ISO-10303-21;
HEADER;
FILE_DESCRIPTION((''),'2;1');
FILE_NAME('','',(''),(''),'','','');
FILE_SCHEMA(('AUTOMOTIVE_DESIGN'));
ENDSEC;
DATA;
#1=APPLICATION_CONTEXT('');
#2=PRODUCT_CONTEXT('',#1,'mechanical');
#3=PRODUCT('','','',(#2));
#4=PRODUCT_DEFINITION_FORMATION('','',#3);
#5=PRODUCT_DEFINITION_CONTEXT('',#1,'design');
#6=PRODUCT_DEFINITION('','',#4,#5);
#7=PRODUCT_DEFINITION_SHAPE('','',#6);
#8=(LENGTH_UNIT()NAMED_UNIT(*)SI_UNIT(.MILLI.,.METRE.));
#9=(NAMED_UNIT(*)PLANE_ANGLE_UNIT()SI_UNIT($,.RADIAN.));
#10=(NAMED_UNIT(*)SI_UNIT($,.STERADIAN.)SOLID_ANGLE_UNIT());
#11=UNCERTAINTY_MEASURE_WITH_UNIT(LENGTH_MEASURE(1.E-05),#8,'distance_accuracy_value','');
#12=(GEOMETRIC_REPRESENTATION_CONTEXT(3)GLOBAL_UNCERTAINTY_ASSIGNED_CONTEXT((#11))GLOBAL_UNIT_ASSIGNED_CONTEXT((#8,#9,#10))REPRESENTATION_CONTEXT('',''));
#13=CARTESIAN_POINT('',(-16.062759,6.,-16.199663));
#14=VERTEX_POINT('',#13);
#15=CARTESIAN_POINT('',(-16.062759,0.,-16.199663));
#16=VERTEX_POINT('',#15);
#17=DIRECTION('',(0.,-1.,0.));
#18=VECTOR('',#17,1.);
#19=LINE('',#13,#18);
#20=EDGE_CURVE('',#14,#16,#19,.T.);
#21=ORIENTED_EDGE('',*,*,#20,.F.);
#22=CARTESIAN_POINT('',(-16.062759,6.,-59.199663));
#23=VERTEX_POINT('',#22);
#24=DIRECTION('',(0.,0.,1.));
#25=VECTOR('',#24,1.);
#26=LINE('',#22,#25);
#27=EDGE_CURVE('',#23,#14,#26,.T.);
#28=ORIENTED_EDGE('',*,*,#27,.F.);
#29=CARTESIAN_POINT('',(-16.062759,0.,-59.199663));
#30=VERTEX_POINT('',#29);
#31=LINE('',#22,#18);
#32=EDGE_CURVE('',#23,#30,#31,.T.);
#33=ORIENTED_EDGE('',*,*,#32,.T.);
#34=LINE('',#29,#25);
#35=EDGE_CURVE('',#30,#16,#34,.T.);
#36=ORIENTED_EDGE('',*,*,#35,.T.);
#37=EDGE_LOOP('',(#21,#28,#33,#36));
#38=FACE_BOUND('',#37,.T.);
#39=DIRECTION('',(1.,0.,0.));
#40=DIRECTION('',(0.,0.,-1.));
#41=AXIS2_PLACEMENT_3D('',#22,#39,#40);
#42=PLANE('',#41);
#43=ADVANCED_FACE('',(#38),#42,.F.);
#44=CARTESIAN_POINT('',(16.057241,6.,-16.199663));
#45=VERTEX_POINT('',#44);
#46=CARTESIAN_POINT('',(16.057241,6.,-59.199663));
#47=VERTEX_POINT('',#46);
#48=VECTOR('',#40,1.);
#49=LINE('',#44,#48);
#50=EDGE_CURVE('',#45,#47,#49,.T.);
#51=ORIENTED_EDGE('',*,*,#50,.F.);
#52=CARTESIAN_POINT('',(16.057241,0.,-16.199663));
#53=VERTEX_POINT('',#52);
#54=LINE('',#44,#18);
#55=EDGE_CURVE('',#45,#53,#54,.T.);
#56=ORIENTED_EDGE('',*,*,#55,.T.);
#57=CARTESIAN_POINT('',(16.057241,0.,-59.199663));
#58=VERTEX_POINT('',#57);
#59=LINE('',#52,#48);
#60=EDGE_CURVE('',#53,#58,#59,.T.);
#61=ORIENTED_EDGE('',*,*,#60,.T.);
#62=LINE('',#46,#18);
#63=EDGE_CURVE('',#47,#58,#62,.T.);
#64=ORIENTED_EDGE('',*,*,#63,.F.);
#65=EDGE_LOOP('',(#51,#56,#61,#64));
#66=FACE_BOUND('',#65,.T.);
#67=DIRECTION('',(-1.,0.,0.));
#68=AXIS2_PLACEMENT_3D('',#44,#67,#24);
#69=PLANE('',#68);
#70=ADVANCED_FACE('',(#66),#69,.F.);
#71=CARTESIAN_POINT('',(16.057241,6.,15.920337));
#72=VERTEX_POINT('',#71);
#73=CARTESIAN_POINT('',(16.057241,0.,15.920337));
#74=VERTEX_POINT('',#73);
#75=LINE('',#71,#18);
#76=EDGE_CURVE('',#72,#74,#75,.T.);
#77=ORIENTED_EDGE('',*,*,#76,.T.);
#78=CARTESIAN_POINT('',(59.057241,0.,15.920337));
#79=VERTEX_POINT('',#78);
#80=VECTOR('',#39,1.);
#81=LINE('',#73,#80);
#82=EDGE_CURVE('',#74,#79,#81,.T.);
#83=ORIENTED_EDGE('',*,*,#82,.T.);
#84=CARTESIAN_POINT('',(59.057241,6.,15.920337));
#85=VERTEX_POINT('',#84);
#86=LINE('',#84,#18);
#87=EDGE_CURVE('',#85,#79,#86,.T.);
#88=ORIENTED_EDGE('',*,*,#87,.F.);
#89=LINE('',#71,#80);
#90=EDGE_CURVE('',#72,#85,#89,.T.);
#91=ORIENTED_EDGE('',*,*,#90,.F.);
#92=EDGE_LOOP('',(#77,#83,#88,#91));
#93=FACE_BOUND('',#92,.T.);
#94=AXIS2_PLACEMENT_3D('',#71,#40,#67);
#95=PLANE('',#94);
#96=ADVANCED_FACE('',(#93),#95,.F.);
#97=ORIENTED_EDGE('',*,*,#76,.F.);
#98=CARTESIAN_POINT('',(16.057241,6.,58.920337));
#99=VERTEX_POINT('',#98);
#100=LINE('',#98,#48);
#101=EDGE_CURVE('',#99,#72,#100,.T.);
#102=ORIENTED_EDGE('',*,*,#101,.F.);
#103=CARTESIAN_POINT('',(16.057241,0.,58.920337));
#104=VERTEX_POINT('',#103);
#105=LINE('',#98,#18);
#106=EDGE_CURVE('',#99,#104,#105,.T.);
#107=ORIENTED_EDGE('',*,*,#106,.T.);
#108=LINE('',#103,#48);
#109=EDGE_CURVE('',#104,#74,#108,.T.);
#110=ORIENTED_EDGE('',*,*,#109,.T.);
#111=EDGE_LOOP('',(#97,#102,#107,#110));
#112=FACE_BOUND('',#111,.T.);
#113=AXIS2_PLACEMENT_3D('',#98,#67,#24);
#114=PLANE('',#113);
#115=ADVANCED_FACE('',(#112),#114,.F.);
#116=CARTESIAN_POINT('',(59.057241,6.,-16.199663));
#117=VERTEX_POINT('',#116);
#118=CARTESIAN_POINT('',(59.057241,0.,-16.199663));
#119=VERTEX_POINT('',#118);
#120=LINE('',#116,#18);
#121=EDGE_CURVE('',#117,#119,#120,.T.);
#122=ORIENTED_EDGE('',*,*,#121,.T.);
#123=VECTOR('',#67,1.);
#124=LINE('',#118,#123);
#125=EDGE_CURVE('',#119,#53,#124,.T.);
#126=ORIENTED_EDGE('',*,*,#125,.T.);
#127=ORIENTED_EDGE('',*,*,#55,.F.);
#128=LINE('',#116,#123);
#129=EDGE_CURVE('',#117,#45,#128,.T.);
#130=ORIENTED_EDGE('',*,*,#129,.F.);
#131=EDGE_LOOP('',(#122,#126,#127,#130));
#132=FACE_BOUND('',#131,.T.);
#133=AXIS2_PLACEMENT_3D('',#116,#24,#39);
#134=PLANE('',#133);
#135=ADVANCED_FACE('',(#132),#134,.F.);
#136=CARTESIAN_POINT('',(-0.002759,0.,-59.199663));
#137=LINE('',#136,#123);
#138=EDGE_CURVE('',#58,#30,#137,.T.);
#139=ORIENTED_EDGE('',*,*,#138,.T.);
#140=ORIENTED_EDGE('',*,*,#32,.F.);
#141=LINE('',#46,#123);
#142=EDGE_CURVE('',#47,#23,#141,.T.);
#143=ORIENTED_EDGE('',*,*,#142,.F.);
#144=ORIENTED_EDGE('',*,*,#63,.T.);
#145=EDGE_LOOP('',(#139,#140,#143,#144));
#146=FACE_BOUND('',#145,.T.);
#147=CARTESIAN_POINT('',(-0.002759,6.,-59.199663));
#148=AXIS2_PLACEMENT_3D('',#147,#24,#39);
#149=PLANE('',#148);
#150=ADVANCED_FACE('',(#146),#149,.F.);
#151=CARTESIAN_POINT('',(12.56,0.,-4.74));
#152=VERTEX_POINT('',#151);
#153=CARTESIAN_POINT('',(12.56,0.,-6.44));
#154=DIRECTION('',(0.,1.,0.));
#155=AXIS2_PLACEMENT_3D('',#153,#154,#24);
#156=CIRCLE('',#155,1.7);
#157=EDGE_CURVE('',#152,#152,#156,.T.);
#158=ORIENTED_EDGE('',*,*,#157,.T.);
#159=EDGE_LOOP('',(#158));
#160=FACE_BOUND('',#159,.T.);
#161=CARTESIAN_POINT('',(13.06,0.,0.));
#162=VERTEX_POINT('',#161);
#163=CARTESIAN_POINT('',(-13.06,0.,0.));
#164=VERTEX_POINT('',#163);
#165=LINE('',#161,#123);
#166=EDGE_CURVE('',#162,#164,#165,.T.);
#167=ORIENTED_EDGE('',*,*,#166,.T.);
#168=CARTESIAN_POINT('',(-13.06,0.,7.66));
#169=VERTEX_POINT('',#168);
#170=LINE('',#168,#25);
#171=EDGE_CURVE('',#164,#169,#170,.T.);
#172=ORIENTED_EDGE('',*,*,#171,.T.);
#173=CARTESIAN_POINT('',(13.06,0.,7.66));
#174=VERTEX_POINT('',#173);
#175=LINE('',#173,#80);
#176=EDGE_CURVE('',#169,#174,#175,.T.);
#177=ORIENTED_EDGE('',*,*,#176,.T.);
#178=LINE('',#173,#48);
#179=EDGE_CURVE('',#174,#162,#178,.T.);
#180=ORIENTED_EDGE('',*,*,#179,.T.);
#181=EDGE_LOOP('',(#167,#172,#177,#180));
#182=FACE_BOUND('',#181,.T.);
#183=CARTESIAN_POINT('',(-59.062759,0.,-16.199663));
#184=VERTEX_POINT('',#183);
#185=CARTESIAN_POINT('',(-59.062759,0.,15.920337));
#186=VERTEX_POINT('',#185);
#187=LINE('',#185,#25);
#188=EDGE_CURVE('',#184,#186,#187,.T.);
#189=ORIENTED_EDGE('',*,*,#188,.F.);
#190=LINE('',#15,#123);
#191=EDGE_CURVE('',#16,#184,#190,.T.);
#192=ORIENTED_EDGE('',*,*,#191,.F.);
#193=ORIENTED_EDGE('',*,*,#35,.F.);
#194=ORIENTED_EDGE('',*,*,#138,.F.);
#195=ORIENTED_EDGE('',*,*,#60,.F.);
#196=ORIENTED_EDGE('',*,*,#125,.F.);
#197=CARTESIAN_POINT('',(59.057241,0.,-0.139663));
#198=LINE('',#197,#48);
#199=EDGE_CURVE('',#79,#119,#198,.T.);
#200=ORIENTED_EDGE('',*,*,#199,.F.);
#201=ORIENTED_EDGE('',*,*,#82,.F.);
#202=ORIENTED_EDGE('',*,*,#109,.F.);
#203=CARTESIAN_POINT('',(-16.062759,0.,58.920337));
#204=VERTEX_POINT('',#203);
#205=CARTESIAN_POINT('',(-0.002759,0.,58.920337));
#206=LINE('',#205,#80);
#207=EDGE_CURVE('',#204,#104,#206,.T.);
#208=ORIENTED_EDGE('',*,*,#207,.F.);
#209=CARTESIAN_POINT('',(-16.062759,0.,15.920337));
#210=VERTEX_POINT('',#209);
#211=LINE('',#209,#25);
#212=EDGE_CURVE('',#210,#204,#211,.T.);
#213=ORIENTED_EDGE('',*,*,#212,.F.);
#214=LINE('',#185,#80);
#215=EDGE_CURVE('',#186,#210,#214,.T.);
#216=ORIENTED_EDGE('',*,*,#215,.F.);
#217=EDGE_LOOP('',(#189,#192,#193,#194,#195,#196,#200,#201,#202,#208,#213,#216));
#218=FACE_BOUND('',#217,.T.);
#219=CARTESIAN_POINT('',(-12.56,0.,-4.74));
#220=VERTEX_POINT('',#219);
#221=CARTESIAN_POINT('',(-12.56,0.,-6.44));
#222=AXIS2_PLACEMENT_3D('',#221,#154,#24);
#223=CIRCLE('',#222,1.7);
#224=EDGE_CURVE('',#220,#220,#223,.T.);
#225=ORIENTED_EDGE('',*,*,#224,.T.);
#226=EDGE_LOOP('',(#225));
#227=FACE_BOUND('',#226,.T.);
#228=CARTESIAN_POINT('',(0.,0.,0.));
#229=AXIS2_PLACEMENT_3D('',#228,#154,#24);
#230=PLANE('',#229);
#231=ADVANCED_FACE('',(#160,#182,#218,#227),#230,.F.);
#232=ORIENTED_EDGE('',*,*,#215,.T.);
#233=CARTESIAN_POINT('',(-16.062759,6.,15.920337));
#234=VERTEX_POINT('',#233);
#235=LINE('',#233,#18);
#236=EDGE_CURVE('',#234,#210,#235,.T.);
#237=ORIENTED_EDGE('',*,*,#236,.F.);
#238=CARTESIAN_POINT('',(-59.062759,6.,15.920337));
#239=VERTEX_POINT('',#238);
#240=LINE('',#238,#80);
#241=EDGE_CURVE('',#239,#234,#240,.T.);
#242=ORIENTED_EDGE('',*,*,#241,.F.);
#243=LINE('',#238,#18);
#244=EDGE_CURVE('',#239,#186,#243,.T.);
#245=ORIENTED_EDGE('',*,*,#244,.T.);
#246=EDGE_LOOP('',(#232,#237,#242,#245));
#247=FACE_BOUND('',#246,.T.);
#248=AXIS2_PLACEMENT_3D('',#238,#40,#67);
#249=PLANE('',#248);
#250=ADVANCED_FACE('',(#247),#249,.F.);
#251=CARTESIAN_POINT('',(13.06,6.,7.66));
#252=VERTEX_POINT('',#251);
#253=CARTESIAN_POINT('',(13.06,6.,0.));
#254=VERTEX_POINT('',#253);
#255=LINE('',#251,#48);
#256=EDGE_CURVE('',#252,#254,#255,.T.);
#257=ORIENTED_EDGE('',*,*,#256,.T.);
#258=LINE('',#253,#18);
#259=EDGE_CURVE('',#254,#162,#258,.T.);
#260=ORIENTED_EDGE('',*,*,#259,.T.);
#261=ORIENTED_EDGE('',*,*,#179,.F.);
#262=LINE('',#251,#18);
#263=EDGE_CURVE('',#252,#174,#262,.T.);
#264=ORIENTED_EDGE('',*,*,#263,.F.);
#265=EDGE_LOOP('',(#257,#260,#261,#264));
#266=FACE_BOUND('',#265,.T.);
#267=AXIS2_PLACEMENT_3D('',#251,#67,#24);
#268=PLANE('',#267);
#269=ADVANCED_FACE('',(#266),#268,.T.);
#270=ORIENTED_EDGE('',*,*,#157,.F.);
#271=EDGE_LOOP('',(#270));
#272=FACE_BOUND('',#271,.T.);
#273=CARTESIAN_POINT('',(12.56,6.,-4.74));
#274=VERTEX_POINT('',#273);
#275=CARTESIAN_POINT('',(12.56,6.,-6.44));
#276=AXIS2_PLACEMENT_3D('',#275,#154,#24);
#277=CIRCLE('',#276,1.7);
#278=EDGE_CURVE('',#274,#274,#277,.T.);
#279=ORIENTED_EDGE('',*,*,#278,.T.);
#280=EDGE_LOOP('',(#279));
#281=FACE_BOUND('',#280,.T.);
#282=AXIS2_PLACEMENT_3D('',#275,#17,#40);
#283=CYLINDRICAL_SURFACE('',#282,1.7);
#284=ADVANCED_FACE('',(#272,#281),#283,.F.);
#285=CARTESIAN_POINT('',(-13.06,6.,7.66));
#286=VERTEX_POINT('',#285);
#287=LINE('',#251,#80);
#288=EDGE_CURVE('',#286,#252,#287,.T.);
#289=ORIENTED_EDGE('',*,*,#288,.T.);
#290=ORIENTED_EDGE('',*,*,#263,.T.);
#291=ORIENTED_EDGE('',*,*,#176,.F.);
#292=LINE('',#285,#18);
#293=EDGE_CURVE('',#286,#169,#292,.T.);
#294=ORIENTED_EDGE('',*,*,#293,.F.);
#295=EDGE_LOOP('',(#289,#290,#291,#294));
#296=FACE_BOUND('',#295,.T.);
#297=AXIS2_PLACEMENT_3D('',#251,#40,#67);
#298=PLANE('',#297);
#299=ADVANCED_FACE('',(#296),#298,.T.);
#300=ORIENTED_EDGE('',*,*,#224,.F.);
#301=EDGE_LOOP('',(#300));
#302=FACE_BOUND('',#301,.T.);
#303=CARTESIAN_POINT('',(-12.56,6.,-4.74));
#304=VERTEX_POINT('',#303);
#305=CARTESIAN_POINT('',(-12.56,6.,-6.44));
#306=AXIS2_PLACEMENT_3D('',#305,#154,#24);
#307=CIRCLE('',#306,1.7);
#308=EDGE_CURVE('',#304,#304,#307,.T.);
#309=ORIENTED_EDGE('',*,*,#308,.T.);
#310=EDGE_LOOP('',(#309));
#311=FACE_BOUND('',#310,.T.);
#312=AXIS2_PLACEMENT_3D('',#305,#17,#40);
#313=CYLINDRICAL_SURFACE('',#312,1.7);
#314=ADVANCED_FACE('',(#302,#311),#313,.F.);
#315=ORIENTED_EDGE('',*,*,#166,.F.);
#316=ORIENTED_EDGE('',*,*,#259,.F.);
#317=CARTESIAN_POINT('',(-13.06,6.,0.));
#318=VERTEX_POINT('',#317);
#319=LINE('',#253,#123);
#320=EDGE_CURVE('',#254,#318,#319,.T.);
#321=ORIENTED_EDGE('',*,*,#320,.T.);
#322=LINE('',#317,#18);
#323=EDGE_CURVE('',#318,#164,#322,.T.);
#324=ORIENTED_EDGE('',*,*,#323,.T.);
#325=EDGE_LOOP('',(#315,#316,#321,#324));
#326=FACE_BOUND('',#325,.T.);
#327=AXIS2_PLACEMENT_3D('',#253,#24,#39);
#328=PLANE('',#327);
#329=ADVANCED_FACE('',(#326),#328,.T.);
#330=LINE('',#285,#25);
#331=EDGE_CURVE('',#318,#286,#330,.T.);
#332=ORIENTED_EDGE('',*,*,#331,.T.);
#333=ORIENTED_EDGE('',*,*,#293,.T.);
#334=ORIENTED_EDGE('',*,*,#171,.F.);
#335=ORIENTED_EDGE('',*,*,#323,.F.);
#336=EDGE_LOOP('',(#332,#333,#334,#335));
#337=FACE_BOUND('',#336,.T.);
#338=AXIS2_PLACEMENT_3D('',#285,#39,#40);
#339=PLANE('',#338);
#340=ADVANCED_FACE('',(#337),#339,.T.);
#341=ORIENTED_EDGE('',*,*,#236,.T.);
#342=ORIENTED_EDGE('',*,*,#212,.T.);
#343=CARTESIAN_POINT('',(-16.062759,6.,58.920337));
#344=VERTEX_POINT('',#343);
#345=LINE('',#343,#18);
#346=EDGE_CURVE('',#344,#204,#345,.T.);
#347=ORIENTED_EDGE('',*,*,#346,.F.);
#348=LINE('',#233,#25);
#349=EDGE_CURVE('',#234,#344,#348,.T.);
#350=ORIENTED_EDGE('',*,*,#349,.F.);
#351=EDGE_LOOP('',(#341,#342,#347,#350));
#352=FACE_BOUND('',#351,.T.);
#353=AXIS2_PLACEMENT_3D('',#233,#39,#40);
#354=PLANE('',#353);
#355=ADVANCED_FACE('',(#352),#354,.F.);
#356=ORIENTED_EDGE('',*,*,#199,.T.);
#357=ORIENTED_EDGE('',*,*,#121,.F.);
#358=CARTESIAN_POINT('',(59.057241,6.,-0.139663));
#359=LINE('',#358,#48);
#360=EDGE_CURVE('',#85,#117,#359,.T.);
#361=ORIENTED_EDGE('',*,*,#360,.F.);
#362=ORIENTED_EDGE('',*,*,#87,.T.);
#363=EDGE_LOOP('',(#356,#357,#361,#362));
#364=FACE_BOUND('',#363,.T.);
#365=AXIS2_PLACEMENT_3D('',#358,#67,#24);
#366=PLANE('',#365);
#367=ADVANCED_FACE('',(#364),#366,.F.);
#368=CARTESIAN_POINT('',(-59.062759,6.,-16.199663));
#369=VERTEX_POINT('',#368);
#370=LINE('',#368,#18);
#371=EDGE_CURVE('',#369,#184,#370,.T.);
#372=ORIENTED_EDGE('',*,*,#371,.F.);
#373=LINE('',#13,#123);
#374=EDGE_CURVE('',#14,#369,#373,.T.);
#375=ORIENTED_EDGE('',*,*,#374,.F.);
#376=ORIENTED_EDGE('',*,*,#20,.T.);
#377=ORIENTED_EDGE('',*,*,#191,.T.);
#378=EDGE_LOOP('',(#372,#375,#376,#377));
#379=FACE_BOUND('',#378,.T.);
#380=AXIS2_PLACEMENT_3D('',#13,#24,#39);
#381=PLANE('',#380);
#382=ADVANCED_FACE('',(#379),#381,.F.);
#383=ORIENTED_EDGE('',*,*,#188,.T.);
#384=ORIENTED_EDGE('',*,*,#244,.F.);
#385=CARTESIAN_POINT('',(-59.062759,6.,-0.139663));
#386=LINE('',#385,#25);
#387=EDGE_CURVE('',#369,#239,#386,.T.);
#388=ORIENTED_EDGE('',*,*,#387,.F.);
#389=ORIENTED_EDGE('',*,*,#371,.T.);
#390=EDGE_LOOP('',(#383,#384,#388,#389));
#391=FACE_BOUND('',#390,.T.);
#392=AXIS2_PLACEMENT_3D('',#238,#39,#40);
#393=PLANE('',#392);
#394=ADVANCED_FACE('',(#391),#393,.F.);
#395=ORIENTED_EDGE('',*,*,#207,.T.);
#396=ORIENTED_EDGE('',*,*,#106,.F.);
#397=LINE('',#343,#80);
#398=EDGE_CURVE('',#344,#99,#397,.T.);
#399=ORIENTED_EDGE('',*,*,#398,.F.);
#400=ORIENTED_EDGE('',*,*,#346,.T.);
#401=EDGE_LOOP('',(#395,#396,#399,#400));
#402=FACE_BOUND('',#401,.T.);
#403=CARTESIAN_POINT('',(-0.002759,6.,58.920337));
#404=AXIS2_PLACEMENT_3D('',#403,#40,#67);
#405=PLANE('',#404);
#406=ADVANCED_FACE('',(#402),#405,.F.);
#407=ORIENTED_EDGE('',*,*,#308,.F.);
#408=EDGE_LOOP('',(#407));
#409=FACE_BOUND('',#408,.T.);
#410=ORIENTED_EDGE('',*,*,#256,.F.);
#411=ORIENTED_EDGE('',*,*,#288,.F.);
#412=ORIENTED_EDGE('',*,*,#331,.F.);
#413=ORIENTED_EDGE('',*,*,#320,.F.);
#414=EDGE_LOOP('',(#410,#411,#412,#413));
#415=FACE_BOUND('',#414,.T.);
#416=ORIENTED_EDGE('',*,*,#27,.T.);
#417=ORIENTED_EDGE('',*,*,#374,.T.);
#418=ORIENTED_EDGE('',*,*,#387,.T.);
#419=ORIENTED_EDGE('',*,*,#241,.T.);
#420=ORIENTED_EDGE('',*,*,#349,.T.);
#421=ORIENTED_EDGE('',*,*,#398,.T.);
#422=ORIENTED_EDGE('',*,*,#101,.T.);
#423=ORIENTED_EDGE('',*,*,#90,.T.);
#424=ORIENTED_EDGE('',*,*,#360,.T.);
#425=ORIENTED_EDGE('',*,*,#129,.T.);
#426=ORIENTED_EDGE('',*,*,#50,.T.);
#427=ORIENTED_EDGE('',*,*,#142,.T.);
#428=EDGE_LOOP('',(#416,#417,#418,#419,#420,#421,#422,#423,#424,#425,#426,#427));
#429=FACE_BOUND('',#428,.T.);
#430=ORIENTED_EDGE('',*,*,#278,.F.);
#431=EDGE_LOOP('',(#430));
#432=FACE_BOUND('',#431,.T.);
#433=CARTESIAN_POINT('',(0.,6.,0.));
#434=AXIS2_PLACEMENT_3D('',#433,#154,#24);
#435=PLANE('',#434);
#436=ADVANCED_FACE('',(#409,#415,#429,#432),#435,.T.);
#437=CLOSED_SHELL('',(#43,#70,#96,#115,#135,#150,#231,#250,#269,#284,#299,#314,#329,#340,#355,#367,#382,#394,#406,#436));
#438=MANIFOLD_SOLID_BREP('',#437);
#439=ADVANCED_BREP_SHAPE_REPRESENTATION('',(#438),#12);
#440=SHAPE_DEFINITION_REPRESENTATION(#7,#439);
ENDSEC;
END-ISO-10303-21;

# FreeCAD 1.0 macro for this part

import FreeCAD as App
import Part
import Sketcher
from FreeCAD import Vector
Q = App.Units.Quantity


def add_polygon(sketch, points):
    """Adds a closed chain of lines whose ends are joined by coincident constraints."""
    first, n = sketch.GeometryCount, len(points)
    for a, b in zip(points, points[1:] + points[:1]):
        sketch.addGeometry(Part.LineSegment(App.Vector(*a, 0), App.Vector(*b, 0)), False)
    for i in range(n):
        sketch.addConstraint(Sketcher.Constraint("Coincident", first + i, 2, first + (i + 1) % n, 1))

doc = App.newDocument("Part")
body = doc.addObject("PartDesign::Body", "Body")

# Sketch on XZ plane
sketch1 = body.newObject("Sketcher::SketchObject", "Sketch")
sketch1.AttachmentSupport = (doc.getObject("XZ_Plane"), [""])
sketch1.MapMode = "FlatFace"
add_polygon(sketch1, [(-16.1, -59.2), (-16.1, -16.2), (-59.1, -16.2), (-59.1, 15.9), (-16.1, 15.9), (-16.1, 58.9), (16.1, 58.9), (16.1, 15.9), (59.1, 15.9), (59.1, -16.2), (16.1, -16.2), (16.1, -59.2)])  # lines 0-11
add_polygon(sketch1, [(13.1, 7.7), (-13.1, 7.7), (-13.1, 0), (13.1, 0)])  # lines 12-15
sketch1.addGeometry(Part.Circle(Vector(-12.6, -6.4, 0), Vector(0, 0, 1), 1.7), False)  # 16
sketch1.addGeometry(Part.Circle(Vector(12.6, -6.4, 0), Vector(0, 0, 1), 1.7), False)  # 17
sketch1.addConstraint(Sketcher.Constraint("Vertical", 0))
sketch1.addConstraint(Sketcher.Constraint("Horizontal", 1))
sketch1.addConstraint(Sketcher.Constraint("Vertical", 2))
sketch1.addConstraint(Sketcher.Constraint("Horizontal", 3))
sketch1.addConstraint(Sketcher.Constraint("Vertical", 4))
sketch1.addConstraint(Sketcher.Constraint("Horizontal", 5))
sketch1.addConstraint(Sketcher.Constraint("Vertical", 6))
sketch1.addConstraint(Sketcher.Constraint("Horizontal", 7))
sketch1.addConstraint(Sketcher.Constraint("Vertical", 8))
sketch1.addConstraint(Sketcher.Constraint("Horizontal", 9))
sketch1.addConstraint(Sketcher.Constraint("Vertical", 10))
sketch1.addConstraint(Sketcher.Constraint("Horizontal", 11))
sketch1.addConstraint(Sketcher.Constraint("Horizontal", 12))
sketch1.addConstraint(Sketcher.Constraint("Vertical", 13))
sketch1.addConstraint(Sketcher.Constraint("Horizontal", 14))
sketch1.addConstraint(Sketcher.Constraint("Vertical", 15))
sketch1.addConstraint(Sketcher.Constraint("Equal", 16, 17))
sketch1.addConstraint(Sketcher.Constraint("Symmetric", 13, 2, 14, 2, -1, 1))
sketch1.addConstraint(Sketcher.Constraint("Symmetric", 16, 3, 17, 3, -2))
sketch1.addConstraint(Sketcher.Constraint("Horizontal", 3, 2, 6, 2))
sketch1.addConstraint(Sketcher.Constraint("Horizontal", 1, 2, 8, 2))
sketch1.addConstraint(Sketcher.Constraint("Vertical", 0, 2, 3, 2))
sketch1.addConstraint(Sketcher.Constraint("Vertical", 6, 2, 9, 2))
sketch1.addConstraint(Sketcher.Constraint("Equal", 3, 7))
sketch1.addConstraint(Sketcher.Constraint("Equal", 9, 0))
sketch1.addConstraint(Sketcher.Constraint("Equal", 11, 2))
sketch1.addConstraint(Sketcher.Constraint("Equal", 0, 4))
sketch1.addConstraint(Sketcher.Constraint("Diameter", 16, Q("3.4 mm")))
sketch1.addConstraint(Sketcher.Constraint("DistanceX", 1, 2, 1, 1, Q("43 mm")))
sketch1.addConstraint(Sketcher.Constraint("DistanceX", 5, 1, 5, 2, Q("32.12 mm")))
sketch1.addConstraint(Sketcher.Constraint("DistanceX", 12, 2, 12, 1, Q("26.12 mm")))
sketch1.addConstraint(Sketcher.Constraint("DistanceY", 13, 2, 13, 1, Q("7.66 mm")))
sketch1.addConstraint(Sketcher.Constraint("DistanceX", 12, 2, 16, 3, Q("0.5 mm")))
sketch1.addConstraint(Sketcher.Constraint("DistanceY", 16, 3, 12, 2, Q("14.1 mm")))
sketch1.addConstraint(Sketcher.Constraint("DistanceX", 0, 2, -1, 1, Q("16.062759 mm")))
sketch1.addConstraint(Sketcher.Constraint("DistanceY", 0, 2, -1, 1, Q("16.199663 mm")))
pad1 = body.newObject("PartDesign::Pad", "Pad")
pad1.Profile = sketch1
pad1.Length = 6
pad1.Reversed = True

doc.recompute()
